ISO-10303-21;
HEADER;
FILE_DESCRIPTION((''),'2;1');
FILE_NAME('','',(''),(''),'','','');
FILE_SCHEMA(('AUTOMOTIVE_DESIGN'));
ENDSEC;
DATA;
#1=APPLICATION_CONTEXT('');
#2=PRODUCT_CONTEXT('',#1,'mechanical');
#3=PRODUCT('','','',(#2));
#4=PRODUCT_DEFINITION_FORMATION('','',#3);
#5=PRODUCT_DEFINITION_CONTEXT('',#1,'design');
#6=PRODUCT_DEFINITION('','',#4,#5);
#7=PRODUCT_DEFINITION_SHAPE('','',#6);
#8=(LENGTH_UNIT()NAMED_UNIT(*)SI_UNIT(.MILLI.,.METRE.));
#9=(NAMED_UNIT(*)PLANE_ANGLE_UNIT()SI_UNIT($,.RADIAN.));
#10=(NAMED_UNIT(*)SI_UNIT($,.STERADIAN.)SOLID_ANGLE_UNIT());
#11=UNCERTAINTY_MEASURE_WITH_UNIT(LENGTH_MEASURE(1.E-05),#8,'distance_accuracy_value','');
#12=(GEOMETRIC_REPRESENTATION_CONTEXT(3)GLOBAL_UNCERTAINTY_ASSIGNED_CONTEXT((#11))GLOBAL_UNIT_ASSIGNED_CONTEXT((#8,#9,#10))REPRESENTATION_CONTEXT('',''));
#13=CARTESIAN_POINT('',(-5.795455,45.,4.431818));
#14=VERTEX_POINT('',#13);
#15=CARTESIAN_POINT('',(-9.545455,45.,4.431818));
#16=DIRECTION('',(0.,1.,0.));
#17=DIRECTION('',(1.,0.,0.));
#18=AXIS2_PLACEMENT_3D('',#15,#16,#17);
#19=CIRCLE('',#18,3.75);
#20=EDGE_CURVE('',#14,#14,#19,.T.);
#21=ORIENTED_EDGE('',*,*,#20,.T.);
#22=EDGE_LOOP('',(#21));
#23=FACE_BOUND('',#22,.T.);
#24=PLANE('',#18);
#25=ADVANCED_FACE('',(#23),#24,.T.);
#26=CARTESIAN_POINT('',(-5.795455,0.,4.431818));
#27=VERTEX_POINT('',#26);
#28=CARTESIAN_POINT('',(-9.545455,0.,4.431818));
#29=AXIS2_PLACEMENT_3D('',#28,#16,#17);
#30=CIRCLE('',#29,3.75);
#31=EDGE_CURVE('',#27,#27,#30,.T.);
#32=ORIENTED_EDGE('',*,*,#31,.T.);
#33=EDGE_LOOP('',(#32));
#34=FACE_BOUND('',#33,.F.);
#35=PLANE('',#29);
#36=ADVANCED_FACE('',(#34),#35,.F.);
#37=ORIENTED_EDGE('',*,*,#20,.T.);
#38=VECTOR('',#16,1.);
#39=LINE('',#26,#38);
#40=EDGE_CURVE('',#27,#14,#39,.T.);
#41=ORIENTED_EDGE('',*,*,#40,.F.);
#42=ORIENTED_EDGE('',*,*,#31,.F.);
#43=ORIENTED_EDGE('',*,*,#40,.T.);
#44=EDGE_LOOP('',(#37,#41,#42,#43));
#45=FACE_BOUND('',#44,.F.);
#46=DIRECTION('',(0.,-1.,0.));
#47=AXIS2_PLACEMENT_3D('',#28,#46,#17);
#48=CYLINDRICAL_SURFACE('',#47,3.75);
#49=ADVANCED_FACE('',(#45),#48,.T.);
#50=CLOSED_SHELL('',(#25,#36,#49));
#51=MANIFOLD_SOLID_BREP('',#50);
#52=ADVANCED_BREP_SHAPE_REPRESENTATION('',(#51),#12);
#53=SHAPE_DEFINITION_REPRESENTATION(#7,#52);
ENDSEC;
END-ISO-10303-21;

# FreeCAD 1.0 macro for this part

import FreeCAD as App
import Part
import Sketcher

V = App.Vector
Q = App.Units.Quantity

doc = App.newDocument("Part")
body = doc.addObject("PartDesign::Body", "Body")

# Sketch on XZ plane
sketch1 = body.newObject("Sketcher::SketchObject", "Sketch")
sketch1.AttachmentSupport = (doc.getObject("XZ_Plane"), [""])
sketch1.MapMode = "FlatFace"
sketch1.addGeometry(Part.Circle(V(-9.5, 4.4, 0), V(0, 0, 1), 3.8), False)
sketch1.addConstraint([
    Sketcher.Constraint("Diameter", 0, Q("7.5 mm")),
    Sketcher.Constraint("DistanceY", -1, 1, 0, 3, Q("4.431818 mm")),
    Sketcher.Constraint("DistanceX", 0, 3, -1, 1, Q("9.545455 mm")),
])
pad1 = body.newObject("PartDesign::Pad", "Pad")
pad1.Profile = sketch1
pad1.Length = 45
pad1.Reversed = True

doc.recompute()
